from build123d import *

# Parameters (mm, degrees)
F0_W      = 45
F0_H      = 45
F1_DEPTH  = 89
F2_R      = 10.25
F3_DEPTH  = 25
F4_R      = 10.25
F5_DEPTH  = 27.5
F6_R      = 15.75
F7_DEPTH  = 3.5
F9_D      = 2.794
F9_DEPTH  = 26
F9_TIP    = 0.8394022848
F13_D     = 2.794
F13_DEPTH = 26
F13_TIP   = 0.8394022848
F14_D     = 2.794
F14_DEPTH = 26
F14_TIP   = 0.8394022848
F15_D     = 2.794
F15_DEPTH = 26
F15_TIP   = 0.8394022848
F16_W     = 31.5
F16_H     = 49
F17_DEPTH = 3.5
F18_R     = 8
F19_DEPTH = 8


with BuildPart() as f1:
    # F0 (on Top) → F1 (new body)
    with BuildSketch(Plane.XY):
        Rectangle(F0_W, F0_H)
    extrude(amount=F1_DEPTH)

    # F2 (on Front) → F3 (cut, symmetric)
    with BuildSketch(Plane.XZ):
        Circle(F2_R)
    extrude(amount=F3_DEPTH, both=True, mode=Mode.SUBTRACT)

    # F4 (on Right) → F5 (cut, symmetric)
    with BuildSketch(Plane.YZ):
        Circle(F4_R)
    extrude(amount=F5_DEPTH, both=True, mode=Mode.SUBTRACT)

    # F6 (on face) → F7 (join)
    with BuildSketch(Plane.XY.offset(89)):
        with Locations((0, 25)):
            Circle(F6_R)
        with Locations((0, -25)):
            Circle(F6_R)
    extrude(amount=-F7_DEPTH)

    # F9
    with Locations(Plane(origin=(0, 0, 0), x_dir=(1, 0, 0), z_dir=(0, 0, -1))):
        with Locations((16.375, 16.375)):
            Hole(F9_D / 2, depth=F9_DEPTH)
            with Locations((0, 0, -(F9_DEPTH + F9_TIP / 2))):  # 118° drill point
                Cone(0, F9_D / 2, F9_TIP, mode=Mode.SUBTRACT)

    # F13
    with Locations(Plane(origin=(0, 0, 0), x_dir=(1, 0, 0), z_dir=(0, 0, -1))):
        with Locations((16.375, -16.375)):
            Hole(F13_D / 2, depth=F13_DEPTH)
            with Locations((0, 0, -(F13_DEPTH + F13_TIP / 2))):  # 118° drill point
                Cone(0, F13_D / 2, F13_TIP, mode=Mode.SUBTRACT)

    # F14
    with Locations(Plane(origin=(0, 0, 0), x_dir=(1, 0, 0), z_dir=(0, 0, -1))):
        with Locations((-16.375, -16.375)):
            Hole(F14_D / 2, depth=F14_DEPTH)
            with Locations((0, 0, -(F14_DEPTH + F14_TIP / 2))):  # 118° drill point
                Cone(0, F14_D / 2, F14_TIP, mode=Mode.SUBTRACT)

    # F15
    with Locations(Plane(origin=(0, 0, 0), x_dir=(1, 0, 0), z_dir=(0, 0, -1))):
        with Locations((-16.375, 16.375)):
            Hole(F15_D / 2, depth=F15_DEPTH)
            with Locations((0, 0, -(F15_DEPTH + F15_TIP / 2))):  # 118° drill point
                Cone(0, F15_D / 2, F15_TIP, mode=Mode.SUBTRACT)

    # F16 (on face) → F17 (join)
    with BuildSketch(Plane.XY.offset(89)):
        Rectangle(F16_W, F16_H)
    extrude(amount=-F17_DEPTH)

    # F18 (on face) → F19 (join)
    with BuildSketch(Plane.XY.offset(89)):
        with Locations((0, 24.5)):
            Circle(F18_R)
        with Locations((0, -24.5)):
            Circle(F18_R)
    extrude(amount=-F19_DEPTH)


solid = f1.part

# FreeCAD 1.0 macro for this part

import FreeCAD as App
import Part
import Sketcher
from FreeCAD import Vector


def add_polygon(sketch, points):
    """Adds a closed chain of lines whose ends are joined by coincident constraints."""
    first, n = sketch.GeometryCount, len(points)
    for a, b in zip(points, points[1:] + points[:1]):
        sketch.addGeometry(Part.LineSegment(App.Vector(*a, 0), App.Vector(*b, 0)), False)
    for i in range(n):
        sketch.addConstraint(Sketcher.Constraint("Coincident", first + i, 2, first + (i + 1) % n, 1))

doc = App.newDocument("Part")
body = doc.addObject("PartDesign::Body", "Body")

sketch1 = body.newObject("Sketcher::SketchObject", "Sketch")
sketch1.AttachmentSupport = (doc.getObject("XY_Plane"), [""])
sketch1.MapMode = "FlatFace"
add_polygon(sketch1, [(-22, 22), (-22, -22), (22, -22), (22, 22)])
sketch1.addConstraint(Sketcher.Constraint("Vertical", 0))
sketch1.addConstraint(Sketcher.Constraint("Horizontal", 1))
sketch1.addConstraint(Sketcher.Constraint("Vertical", 2))
sketch1.addConstraint(Sketcher.Constraint("Horizontal", 3))
sketch1.addConstraint(Sketcher.Constraint("Symmetric", 0, 2, 2, 2, -1, 1))
sketch1.addConstraint(Sketcher.Constraint("Equal", 3, 0))
sketch1.addConstraint(Sketcher.Constraint("DistanceX", 1, 1, 1, 2, 45.0))
pad1 = body.newObject("PartDesign::Pad", "Pad")
pad1.Profile = sketch1
pad1.Length = 89

sketch2 = body.newObject("Sketcher::SketchObject", "Sketch001")
sketch2.AttachmentSupport = (doc.getObject("XZ_Plane"), [""])
sketch2.MapMode = "FlatFace"
sketch2.addGeometry(Part.Circle(Vector(0, 0, 0), Vector(0, 0, 1), 10), False)
sketch2.addConstraint(Sketcher.Constraint("Coincident", 0, 3, -1, 1))
sketch2.addConstraint(Sketcher.Constraint("Diameter", 0, 20.5))
pocket1 = body.newObject("PartDesign::Pocket", "Pocket")
pocket1.Profile = sketch2
pocket1.Length = 50
pocket1.Midplane = True

sketch3 = body.newObject("Sketcher::SketchObject", "Sketch002")
sketch3.AttachmentSupport = (doc.getObject("YZ_Plane"), [""])
sketch3.MapMode = "FlatFace"
sketch3.addGeometry(Part.Circle(Vector(0, 0, 0), Vector(0, 0, 1), 10), False)
sketch3.addConstraint(Sketcher.Constraint("Coincident", 0, 3, -1, 1))
sketch3.addConstraint(Sketcher.Constraint("Diameter", 0, 20.5))
pocket2 = body.newObject("PartDesign::Pocket", "Pocket001")
pocket2.Profile = sketch3
pocket2.Length = 55
pocket2.Midplane = True

sketch4 = body.newObject("Sketcher::SketchObject", "Sketch003")
sketch4.AttachmentSupport = (doc.getObject("XY_Plane"), [""])
sketch4.MapMode = "FlatFace"
sketch4.AttachmentOffset = App.Placement(Vector(0, 0, 89), App.Rotation())
sketch4.addGeometry(Part.Circle(Vector(0, 25, 0), Vector(0, 0, 1), 16), False)
sketch4.addGeometry(Part.Circle(Vector(0, -25, 0), Vector(0, 0, 1), 16), False)
sketch4.addConstraint(Sketcher.Constraint("Equal", 0, 1))
sketch4.addConstraint(Sketcher.Constraint("Symmetric", 0, 3, 1, 3, -1, 1))
sketch4.addConstraint(Sketcher.Constraint("PointOnObject", 0, 3, -2))
sketch4.addConstraint(Sketcher.Constraint("Diameter", 0, 31.5))
sketch4.addConstraint(Sketcher.Constraint("DistanceY", -1, 1, 0, 3, 25.0))
pad2 = body.newObject("PartDesign::Pad", "Pad001")
pad2.Profile = sketch4
pad2.Length = 3.5
pad2.Reversed = True

sketch5 = body.newObject("Sketcher::SketchObject", "Sketch004")
sketch5.AttachmentSupport = (doc.getObject("XY_Plane"), [""])
sketch5.MapMode = "FlatFace"
sketch5.addGeometry(Part.Circle(Vector(16.4, -16.4, 0), Vector(0, 0, 1), 1.4), False)
sketch5.addConstraint(Sketcher.Constraint("Diameter", 0, 2.794))
sketch5.addConstraint(Sketcher.Constraint("DistanceX", -1, 1, 0, 3, 16.375))
sketch5.addConstraint(Sketcher.Constraint("DistanceY", 0, 3, -1, 1, 16.375))
doc.recompute()
hole = body.newObject("PartDesign::Hole", "Hole")
hole.Profile = sketch5
hole.ThreadType = "None"
hole.Diameter = 2.794
hole.DepthType = "Dimension"
hole.Depth = 26
hole.DrillPoint = "Angled"
hole.DrillPointAngle = 118
hole.Reversed = True

sketch6 = body.newObject("Sketcher::SketchObject", "Sketch005")
sketch6.AttachmentSupport = (doc.getObject("XY_Plane"), [""])
sketch6.MapMode = "FlatFace"
sketch6.addGeometry(Part.Circle(Vector(16.4, 16.4, 0), Vector(0, 0, 1), 1.4), False)
sketch6.addConstraint(Sketcher.Constraint("Diameter", 0, 2.794))
sketch6.addConstraint(Sketcher.Constraint("DistanceX", -1, 1, 0, 3, 16.375))
sketch6.addConstraint(Sketcher.Constraint("DistanceY", -1, 1, 0, 3, 16.375))
doc.recompute()
hole2 = body.newObject("PartDesign::Hole", "Hole001")
hole2.Profile = sketch6
hole2.ThreadType = "None"
hole2.Diameter = 2.794
hole2.DepthType = "Dimension"
hole2.Depth = 26
hole2.DrillPoint = "Angled"
hole2.DrillPointAngle = 118
hole2.Reversed = True

sketch7 = body.newObject("Sketcher::SketchObject", "Sketch006")
sketch7.AttachmentSupport = (doc.getObject("XY_Plane"), [""])
sketch7.MapMode = "FlatFace"
sketch7.addGeometry(Part.Circle(Vector(-16.4, 16.4, 0), Vector(0, 0, 1), 1.4), False)
sketch7.addConstraint(Sketcher.Constraint("Diameter", 0, 2.794))
sketch7.addConstraint(Sketcher.Constraint("DistanceX", 0, 3, -1, 1, 16.375))
sketch7.addConstraint(Sketcher.Constraint("DistanceY", -1, 1, 0, 3, 16.375))
doc.recompute()
hole3 = body.newObject("PartDesign::Hole", "Hole002")
hole3.Profile = sketch7
hole3.ThreadType = "None"
hole3.Diameter = 2.794
hole3.DepthType = "Dimension"
hole3.Depth = 26
hole3.DrillPoint = "Angled"
hole3.DrillPointAngle = 118
hole3.Reversed = True

sketch8 = body.newObject("Sketcher::SketchObject", "Sketch007")
sketch8.AttachmentSupport = (doc.getObject("XY_Plane"), [""])
sketch8.MapMode = "FlatFace"
sketch8.addGeometry(Part.Circle(Vector(-16.4, -16.4, 0), Vector(0, 0, 1), 1.4), False)
sketch8.addConstraint(Sketcher.Constraint("Diameter", 0, 2.794))
sketch8.addConstraint(Sketcher.Constraint("DistanceX", 0, 3, -1, 1, 16.375))
sketch8.addConstraint(Sketcher.Constraint("DistanceY", 0, 3, -1, 1, 16.375))
doc.recompute()
hole4 = body.newObject("PartDesign::Hole", "Hole003")
hole4.Profile = sketch8
hole4.ThreadType = "None"
hole4.Diameter = 2.794
hole4.DepthType = "Dimension"
hole4.Depth = 26
hole4.DrillPoint = "Angled"
hole4.DrillPointAngle = 118
hole4.Reversed = True

sketch9 = body.newObject("Sketcher::SketchObject", "Sketch008")
sketch9.AttachmentSupport = (doc.getObject("XY_Plane"), [""])
sketch9.MapMode = "FlatFace"
sketch9.AttachmentOffset = App.Placement(Vector(0, 0, 89), App.Rotation())
add_polygon(sketch9, [(-16, 24), (-16, -24), (16, -24), (16, 24)])
sketch9.addConstraint(Sketcher.Constraint("Vertical", 0))
sketch9.addConstraint(Sketcher.Constraint("Horizontal", 1))
sketch9.addConstraint(Sketcher.Constraint("Vertical", 2))
sketch9.addConstraint(Sketcher.Constraint("Horizontal", 3))
sketch9.addConstraint(Sketcher.Constraint("Symmetric", 0, 2, 2, 2, -1, 1))
sketch9.addConstraint(Sketcher.Constraint("DistanceY", 0, 2, 0, 1, 49.0))
sketch9.addConstraint(Sketcher.Constraint("DistanceX", 1, 1, 1, 2, 31.5))
pad3 = body.newObject("PartDesign::Pad", "Pad002")
pad3.Profile = sketch9
pad3.Length = 3.5
pad3.Reversed = True

sketch10 = body.newObject("Sketcher::SketchObject", "Sketch009")
sketch10.AttachmentSupport = (doc.getObject("XY_Plane"), [""])
sketch10.MapMode = "FlatFace"
sketch10.AttachmentOffset = App.Placement(Vector(0, 0, 89), App.Rotation())
sketch10.addGeometry(Part.Circle(Vector(0, 24, 0), Vector(0, 0, 1), 8), False)
sketch10.addGeometry(Part.Circle(Vector(0, -24, 0), Vector(0, 0, 1), 8), False)
sketch10.addConstraint(Sketcher.Constraint("Equal", 0, 1))
sketch10.addConstraint(Sketcher.Constraint("Symmetric", 0, 3, 1, 3, -1, 1))
sketch10.addConstraint(Sketcher.Constraint("PointOnObject", 0, 3, -2))
sketch10.addConstraint(Sketcher.Constraint("Diameter", 0, 16.0))
sketch10.addConstraint(Sketcher.Constraint("DistanceY", 1, 3, 0, 3, 49.0))
pad4 = body.newObject("PartDesign::Pad", "Pad003")
pad4.Profile = sketch10
pad4.Length = 8
pad4.Reversed = True

doc.recompute()
